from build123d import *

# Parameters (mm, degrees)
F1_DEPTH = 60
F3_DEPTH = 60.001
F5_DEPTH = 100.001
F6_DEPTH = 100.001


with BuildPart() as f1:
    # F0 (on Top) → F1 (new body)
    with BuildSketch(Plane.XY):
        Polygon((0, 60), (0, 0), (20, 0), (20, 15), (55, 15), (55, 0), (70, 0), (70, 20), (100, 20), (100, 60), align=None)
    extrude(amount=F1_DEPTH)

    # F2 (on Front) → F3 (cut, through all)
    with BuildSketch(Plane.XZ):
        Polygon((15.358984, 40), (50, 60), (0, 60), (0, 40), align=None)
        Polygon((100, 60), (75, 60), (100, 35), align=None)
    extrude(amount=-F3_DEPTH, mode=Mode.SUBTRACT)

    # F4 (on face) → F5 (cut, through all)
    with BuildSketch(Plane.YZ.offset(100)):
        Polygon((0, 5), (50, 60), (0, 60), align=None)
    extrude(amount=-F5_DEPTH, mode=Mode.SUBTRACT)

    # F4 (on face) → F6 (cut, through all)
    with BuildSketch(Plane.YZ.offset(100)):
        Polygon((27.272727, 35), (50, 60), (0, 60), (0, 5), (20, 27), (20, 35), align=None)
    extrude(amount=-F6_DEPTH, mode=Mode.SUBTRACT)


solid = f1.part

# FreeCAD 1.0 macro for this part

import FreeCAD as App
import Part
import Sketcher
Q = App.Units.Quantity


def add_polygon(sketch, points):
    """Adds a closed chain of lines whose ends are joined by coincident constraints."""
    first, n = sketch.GeometryCount, len(points)
    for a, b in zip(points, points[1:] + points[:1]):
        sketch.addGeometry(Part.LineSegment(App.Vector(*a, 0), App.Vector(*b, 0)), False)
    for i in range(n):
        sketch.addConstraint(Sketcher.Constraint("Coincident", first + i, 2, first + (i + 1) % n, 1))

doc = App.newDocument("Part")
body = doc.addObject("PartDesign::Body", "Body")

# Sketch on XY plane
sketch1 = body.newObject("Sketcher::SketchObject", "Sketch")
sketch1.AttachmentSupport = (doc.getObject("XY_Plane"), [""])
sketch1.MapMode = "FlatFace"
add_polygon(sketch1, [(0, 60), (0, 0), (20, 0), (20, 15), (55, 15), (55, 0), (70, 0), (70, 20), (100, 20), (100, 60)])  # lines 0-9
sketch1.addConstraint([
    Sketcher.Constraint("Vertical", 0),
    Sketcher.Constraint("Horizontal", 1),
    Sketcher.Constraint("Vertical", 2),
    Sketcher.Constraint("Horizontal", 3),
    Sketcher.Constraint("Vertical", 4),
    Sketcher.Constraint("Horizontal", 5),
    Sketcher.Constraint("Vertical", 6),
    Sketcher.Constraint("Horizontal", 7),
    Sketcher.Constraint("Vertical", 8),
    Sketcher.Constraint("Horizontal", 9),
    Sketcher.Constraint("Coincident", 0, 2, -1, 1),
    Sketcher.Constraint("PointOnObject", 4, 2, -1),
    Sketcher.Constraint("Equal", 5, 2),
    Sketcher.Constraint("Equal", 1, 6),
    Sketcher.Constraint("DistanceX", 1, 1, 1, 2, 20.0),
    Sketcher.Constraint("DistanceX", 3, 1, 3, 2, 35.0),
    Sketcher.Constraint("DistanceX", 5, 1, 5, 2, 15.0),
    Sketcher.Constraint("DistanceX", 7, 1, 7, 2, 30.0),
    Sketcher.Constraint("DistanceY", 0, 2, 0, 1, 60.0),
])
pad1 = body.newObject("PartDesign::Pad", "Pad")
pad1.Profile = sketch1
pad1.Length = 60

# Sketch on XZ plane
sketch2 = body.newObject("Sketcher::SketchObject", "Sketch001")
sketch2.AttachmentSupport = (doc.getObject("XZ_Plane"), [""])
sketch2.MapMode = "FlatFace"
add_polygon(sketch2, [(15, 40), (50, 60), (0, 60), (0, 40)])  # lines 0-3
add_polygon(sketch2, [(100, 60), (75, 60), (100, 35)])  # lines 4-6
sketch2.addConstraint([
    Sketcher.Constraint("Horizontal", 1),
    Sketcher.Constraint("Vertical", 2),
    Sketcher.Constraint("Horizontal", 3),
    Sketcher.Constraint("Horizontal", 4),
    Sketcher.Constraint("Vertical", 6),
    Sketcher.Constraint("PointOnObject", 1, 2, -2),
    Sketcher.Constraint("Horizontal", 1, 2, 4, 2),
    Sketcher.Constraint("Equal", 4, 6),
    Sketcher.Constraint("DistanceX", 1, 2, 1, 1, 50.0),
    Sketcher.Constraint("DistanceX", 4, 2, 4, 1, 25.0),
    Sketcher.Constraint("DistanceY", 2, 2, 2, 1, 20.0),
    Sketcher.Constraint("Angle", 0, Q("30 deg")),
    Sketcher.Constraint("DistanceY", -1, 1, 0, 2, 60.0),
    Sketcher.Constraint("DistanceX", -1, 1, 4, 2, 75.0),
])
pocket1 = body.newObject("PartDesign::Pocket", "Pocket")
pocket1.Profile = sketch2
pocket1.Type = "ThroughAll"

# Sketch on YZ plane
sketch3 = body.newObject("Sketcher::SketchObject", "Sketch002")
sketch3.AttachmentSupport = (doc.getObject("YZ_Plane"), [""])
sketch3.MapMode = "FlatFace"
sketch3.AttachmentOffset = App.Placement(App.Vector(0, 0, 100), App.Rotation())
add_polygon(sketch3, [(0, 5), (50, 60), (0, 60)])  # lines 0-2
sketch3.addConstraint([
    Sketcher.Constraint("Horizontal", 1),
    Sketcher.Constraint("Vertical", 2),
    Sketcher.Constraint("PointOnObject", 1, 2, -2),
    Sketcher.Constraint("DistanceX", 1, 2, 1, 1, 50.0),
    Sketcher.Constraint("DistanceY", 2, 2, 2, 1, 55.0),
    Sketcher.Constraint("DistanceY", -1, 1, 0, 2, 60.0),
])
pocket2 = body.newObject("PartDesign::Pocket", "Pocket001")
pocket2.Profile = sketch3
pocket2.Type = "ThroughAll"

# Sketch on YZ plane
sketch4 = body.newObject("Sketcher::SketchObject", "Sketch003")
sketch4.AttachmentSupport = (doc.getObject("YZ_Plane"), [""])
sketch4.MapMode = "FlatFace"
sketch4.AttachmentOffset = App.Placement(App.Vector(0, 0, 100), App.Rotation())
add_polygon(sketch4, [(27, 35), (50, 60), (0, 60), (0, 5), (20, 27), (20, 35)])  # lines 0-5
sketch4.addConstraint([
    Sketcher.Constraint("Horizontal", 1),
    Sketcher.Constraint("Vertical", 2),
    Sketcher.Constraint("Vertical", 4),
    Sketcher.Constraint("Horizontal", 5),
    Sketcher.Constraint("PointOnObject", 1, 2, -2),
    Sketcher.Constraint("Parallel", 0, 3),
    Sketcher.Constraint("DistanceX", 1, 2, 1, 1, 50.0),
    Sketcher.Constraint("DistanceY", 2, 2, 2, 1, 55.0),
    Sketcher.Constraint("DistanceY", 4, 1, 4, 2, 8.0),
    Sketcher.Constraint("DistanceY", -1, 1, 0, 2, 60.0),
    Sketcher.Constraint("DistanceX", -1, 1, 3, 2, 20.0),
    Sketcher.Constraint("DistanceY", -1, 1, 3, 2, 27.0),
])
pocket3 = body.newObject("PartDesign::Pocket", "Pocket002")
pocket3.Profile = sketch4
pocket3.Type = "ThroughAll"

doc.recompute()
